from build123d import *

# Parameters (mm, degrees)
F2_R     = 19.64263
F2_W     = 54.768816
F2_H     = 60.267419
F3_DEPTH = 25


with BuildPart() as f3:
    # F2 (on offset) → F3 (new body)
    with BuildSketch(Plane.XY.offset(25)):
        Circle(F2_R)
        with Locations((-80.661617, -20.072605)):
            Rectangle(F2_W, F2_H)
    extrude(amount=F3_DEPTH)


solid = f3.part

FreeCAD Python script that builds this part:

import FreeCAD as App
import Part
import Sketcher
Q = App.Units.Quantity


def add_polygon(sketch, points):
    """Adds a closed chain of lines whose ends are joined by coincident constraints."""
    first, n = sketch.GeometryCount, len(points)
    for a, b in zip(points, points[1:] + points[:1]):
        sketch.addGeometry(Part.LineSegment(App.Vector(*a, 0), App.Vector(*b, 0)), False)
    for i in range(n):
        sketch.addConstraint(Sketcher.Constraint("Coincident", first + i, 2, first + (i + 1) % n, 1))

doc = App.newDocument("Part")
body = doc.addObject("PartDesign::Body", "Body")
body.AllowCompound = True

# Sketch on XY plane
sketch1 = body.newObject("Sketcher::SketchObject", "Sketch")
sketch1.AttachmentSupport = (doc.getObject("XY_Plane"), [""])
sketch1.MapMode = "FlatFace"
sketch1.AttachmentOffset = App.Placement(App.Vector(0, 0, 25), App.Rotation())
sketch1.addGeometry(Part.Circle(App.Vector(0, 0, 0), App.Vector(0, 0, 1), 19.64263), False)  # 0
add_polygon(sketch1, [(-108.046025, 10.061105), (-108.046025, -50.206314), (-53.277209, -50.206314), (-53.277209, 10.061105)])  # lines 1-4
sketch1.addConstraint(Sketcher.Constraint("Vertical", 1))
sketch1.addConstraint(Sketcher.Constraint("Horizontal", 2))
sketch1.addConstraint(Sketcher.Constraint("Vertical", 3))
sketch1.addConstraint(Sketcher.Constraint("Horizontal", 4))
sketch1.addConstraint(Sketcher.Constraint("Coincident", 0, 3, -1, 1))
sketch1.addConstraint(Sketcher.Constraint("Diameter", 0, Q("39.28526 mm")))
sketch1.addConstraint(Sketcher.Constraint("DistanceY", 1, 2, 1, 1, Q("60.267419 mm")))
sketch1.addConstraint(Sketcher.Constraint("DistanceX", 2, 1, 2, 2, Q("54.768816 mm")))
sketch1.addConstraint(Sketcher.Constraint("DistanceX", 2, 2, -1, 1, Q("53.277209 mm")))
sketch1.addConstraint(Sketcher.Constraint("DistanceY", 1, 2, -1, 1, Q("50.206314 mm")))
pad1 = body.newObject("PartDesign::Pad", "Pad")
pad1.Profile = sketch1
pad1.Length = 25

doc.recompute()
